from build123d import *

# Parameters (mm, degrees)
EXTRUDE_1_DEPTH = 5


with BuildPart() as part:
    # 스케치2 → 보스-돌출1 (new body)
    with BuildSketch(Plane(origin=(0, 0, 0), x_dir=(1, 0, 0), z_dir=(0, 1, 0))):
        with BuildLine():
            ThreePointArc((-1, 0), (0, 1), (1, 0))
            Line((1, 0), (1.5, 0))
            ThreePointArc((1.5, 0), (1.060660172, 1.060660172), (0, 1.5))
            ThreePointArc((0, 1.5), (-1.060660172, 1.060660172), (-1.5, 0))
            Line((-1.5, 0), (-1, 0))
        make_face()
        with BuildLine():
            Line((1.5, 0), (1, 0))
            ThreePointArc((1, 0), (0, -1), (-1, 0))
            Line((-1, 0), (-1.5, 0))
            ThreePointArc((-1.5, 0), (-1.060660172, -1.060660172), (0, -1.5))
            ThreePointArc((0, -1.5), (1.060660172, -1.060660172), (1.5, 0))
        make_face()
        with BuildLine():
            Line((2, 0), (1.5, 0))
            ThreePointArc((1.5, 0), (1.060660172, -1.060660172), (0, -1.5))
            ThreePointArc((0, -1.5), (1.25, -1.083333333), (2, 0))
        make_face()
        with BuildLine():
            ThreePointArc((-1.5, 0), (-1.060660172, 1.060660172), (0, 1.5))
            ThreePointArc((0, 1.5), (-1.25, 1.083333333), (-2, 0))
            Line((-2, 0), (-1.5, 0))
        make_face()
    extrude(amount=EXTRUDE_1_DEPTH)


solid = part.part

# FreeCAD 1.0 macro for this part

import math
import FreeCAD as App
import Part
import Sketcher
Q = App.Units.Quantity

doc = App.newDocument("Part")
params = doc.addObject("Spreadsheet::Sheet", "Params")
for row, (alias, value) in enumerate([
    ("sketch1_diameter", "2 mm"),
    ("sketch1_radius", "1.5 mm"),
    ("sketch1_width", "0.5 mm"),
    ("pad1_length", "5 mm"),
], start=1):
    params.set(f"A{row}", alias)
    params.set(f"B{row}", "=" + value)
    params.setAlias(f"B{row}", alias)

body = doc.addObject("PartDesign::Body", "Body")

# Sketch on XZ plane
sketch1 = body.newObject("Sketcher::SketchObject", "Sketch")
sketch1.AttachmentSupport = (doc.getObject("XZ_Plane"), [""])
sketch1.MapMode = "FlatFace"
sketch1.addGeometry(Part.ArcOfCircle(Part.Circle(App.Vector(0, 0, 0), App.Vector(0, 0, 1), 1.5), math.radians(90), math.radians(180)), False)
sketch1.addGeometry(Part.ArcOfCircle(Part.Circle(App.Vector(0, -0.6, 0), App.Vector(0, 0, 1), 2.1), math.radians(16), math.radians(90)), False)
sketch1.addGeometry(Part.LineSegment(App.Vector(2, 0, 0), App.Vector(1.5, 0, 0)), False)
sketch1.addGeometry(Part.ArcOfCircle(Part.Circle(App.Vector(0, 0, 0), App.Vector(0, 0, 1), 1.5), math.radians(-90), math.radians(0)), False)
sketch1.addGeometry(Part.ArcOfCircle(Part.Circle(App.Vector(0, 0.6, 0), App.Vector(0, 0, 1), 2.1), math.radians(-164), math.radians(-90)), False)
sketch1.addGeometry(Part.LineSegment(App.Vector(-2, 0, 0), App.Vector(-1.5, 0, 0)), False)
sketch1.addGeometry(Part.Circle(App.Vector(0, 0, 0), App.Vector(0, 0, 1), 1), False)
sketch1.addConstraint(Sketcher.Constraint("Tangent", 0, 1, 1, 2))
sketch1.addConstraint(Sketcher.Constraint("Coincident", 1, 1, 2, 1))
sketch1.addConstraint(Sketcher.Constraint("Coincident", 2, 2, 3, 2))
sketch1.addConstraint(Sketcher.Constraint("Tangent", 3, 1, 4, 2))
sketch1.addConstraint(Sketcher.Constraint("Coincident", 4, 1, 5, 1))
sketch1.addConstraint(Sketcher.Constraint("Coincident", 5, 2, 0, 2))
sketch1.addConstraint(Sketcher.Constraint("Horizontal", 2))
sketch1.addConstraint(Sketcher.Constraint("Horizontal", 5))
sketch1.addConstraint(Sketcher.Constraint("Coincident", 0, 3, -1, 1))
sketch1.addConstraint(Sketcher.Constraint("Coincident", 3, 3, -1, 1))
sketch1.addConstraint(Sketcher.Constraint("Coincident", 6, 3, -1, 1))
sketch1.addConstraint(Sketcher.Constraint("Equal", 0, 3))
sketch1.addConstraint(Sketcher.Constraint("Equal", 1, 4))
sketch1.addConstraint(Sketcher.Constraint("Symmetric", 1, 1, 4, 1, -1, 1))
sketch1.addConstraint(Sketcher.Constraint("PointOnObject", 1, 3, -2))
sketch1.addConstraint(Sketcher.Constraint("PointOnObject", 1, 1, -1))
sketch1.addConstraint(Sketcher.Constraint("Diameter", 6, Q("2 mm")))
sketch1.addConstraint(Sketcher.Constraint("Radius", 0, Q("1.5 mm")))
sketch1.addConstraint(Sketcher.Constraint("DistanceX", 2, 2, 2, 1, Q("0.5 mm")))
sketch1.setExpression("Constraints[16]", "Params.sketch1_diameter")
sketch1.setExpression("Constraints[17]", "Params.sketch1_radius")
sketch1.setExpression("Constraints[18]", "Params.sketch1_width")
pad1 = body.newObject("PartDesign::Pad", "Pad")
pad1.Profile = sketch1
pad1.setExpression("Length", "Params.pad1_length")
pad1.Reversed = True

doc.recompute()
